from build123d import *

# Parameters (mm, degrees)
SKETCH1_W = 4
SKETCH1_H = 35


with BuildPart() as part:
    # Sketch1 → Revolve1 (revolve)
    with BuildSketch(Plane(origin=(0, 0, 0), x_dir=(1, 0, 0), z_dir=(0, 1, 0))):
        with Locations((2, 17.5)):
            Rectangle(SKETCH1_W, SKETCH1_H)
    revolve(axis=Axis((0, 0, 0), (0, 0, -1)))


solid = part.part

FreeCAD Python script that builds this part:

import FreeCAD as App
import Part
import Sketcher

doc = App.newDocument("Part")
body = doc.addObject("PartDesign::Body", "Body")

# Sketch on XZ plane
sketch1 = body.newObject("Sketcher::SketchObject", "Sketch")
sketch1.AttachmentSupport = (doc.getObject("XZ_Plane"), [""])
sketch1.MapMode = "FlatFace"
sketch1.addGeometry([
    Part.LineSegment(App.Vector(0, -35, 0), App.Vector(0, 0, 0)),
    Part.LineSegment(App.Vector(0, 0, 0), App.Vector(4, 0, 0)),
    Part.LineSegment(App.Vector(4, 0, 0), App.Vector(4, -35, 0)),
    Part.LineSegment(App.Vector(4, -35, 0), App.Vector(0, -35, 0)),
], False)
sketch1.addConstraint([
    Sketcher.Constraint("Coincident", 0, 2, 1, 1),
    Sketcher.Constraint("Coincident", 1, 2, 2, 1),
    Sketcher.Constraint("Coincident", 2, 2, 3, 1),
    Sketcher.Constraint("Coincident", 3, 2, 0, 1),
    Sketcher.Constraint("Vertical", 0),
    Sketcher.Constraint("Horizontal", 1),
    Sketcher.Constraint("Vertical", 2),
    Sketcher.Constraint("Horizontal", 3),
    Sketcher.Constraint("Coincident", 0, 2, -1, 1),
    Sketcher.Constraint("DistanceX", 1, 1, 1, 2, 4.0),
    Sketcher.Constraint("DistanceY", 0, 1, 0, 2, 35.0),
])
revolution = body.newObject("PartDesign::Revolution", "Revolution")
revolution.Profile = sketch1
revolution.ReferenceAxis = (sketch1, ["V_Axis"])
revolution.Angle = 360

doc.recompute()
